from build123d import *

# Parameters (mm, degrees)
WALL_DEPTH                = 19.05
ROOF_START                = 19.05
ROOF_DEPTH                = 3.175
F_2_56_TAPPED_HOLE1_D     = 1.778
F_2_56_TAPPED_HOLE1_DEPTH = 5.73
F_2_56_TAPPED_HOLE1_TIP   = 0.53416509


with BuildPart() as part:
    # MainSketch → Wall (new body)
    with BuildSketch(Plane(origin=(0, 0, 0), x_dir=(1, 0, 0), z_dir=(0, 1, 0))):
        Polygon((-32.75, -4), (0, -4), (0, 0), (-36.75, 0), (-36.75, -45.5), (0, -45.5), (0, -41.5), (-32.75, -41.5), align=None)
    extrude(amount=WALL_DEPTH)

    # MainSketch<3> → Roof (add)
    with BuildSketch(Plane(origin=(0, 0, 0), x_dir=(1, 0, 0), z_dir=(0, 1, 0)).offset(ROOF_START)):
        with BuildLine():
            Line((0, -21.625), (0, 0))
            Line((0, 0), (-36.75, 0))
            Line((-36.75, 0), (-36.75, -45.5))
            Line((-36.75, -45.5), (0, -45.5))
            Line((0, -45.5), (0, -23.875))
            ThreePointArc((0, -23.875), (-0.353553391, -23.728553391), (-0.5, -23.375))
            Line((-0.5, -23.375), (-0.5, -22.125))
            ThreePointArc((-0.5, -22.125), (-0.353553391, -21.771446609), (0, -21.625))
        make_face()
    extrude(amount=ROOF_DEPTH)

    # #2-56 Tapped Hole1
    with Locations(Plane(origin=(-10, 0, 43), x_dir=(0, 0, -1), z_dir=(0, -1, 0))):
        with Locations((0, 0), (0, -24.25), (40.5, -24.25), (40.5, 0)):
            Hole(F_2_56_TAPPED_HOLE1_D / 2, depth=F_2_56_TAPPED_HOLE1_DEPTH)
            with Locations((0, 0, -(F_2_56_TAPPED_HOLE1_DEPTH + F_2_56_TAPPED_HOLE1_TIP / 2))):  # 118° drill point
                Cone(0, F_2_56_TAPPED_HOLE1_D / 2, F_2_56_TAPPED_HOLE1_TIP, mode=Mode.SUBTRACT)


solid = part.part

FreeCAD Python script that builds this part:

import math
import FreeCAD as App
import Part
import Sketcher

doc = App.newDocument("Part")
params = doc.addObject("Spreadsheet::Sheet", "Params")
for row, (alias, value) in enumerate([
    ("sketch1_height", "4 mm"),
    ("sketch1_height2", "45.5 mm"),
    ("sketch1_width", "32.75 mm"),
    ("pad1_length", "19.05 mm"),
    ("sketch2_radius", "0.5 mm"),
    ("sketch2_height", "45.5 mm"),
    ("sketch2_width", "36.75 mm"),
    ("sketch2_height2", "1.25 mm"),
    ("pad2_length", "3.175 mm"),
    ("hole_diameter", "1.778 mm"),
    ("hole_depth", "5.73 mm"),
], start=1):
    params.set(f"A{row}", alias)
    params.set(f"B{row}", "=" + value)
    params.setAlias(f"B{row}", alias)

body = doc.addObject("PartDesign::Body", "Body")

sketch1 = body.newObject("Sketcher::SketchObject", "Sketch")
sketch1.AttachmentSupport = (doc.getObject("XZ_Plane"), [""])
sketch1.MapMode = "FlatFace"
sketch1.addGeometry([
    Part.LineSegment(App.Vector(-32.8, 4, 0), App.Vector(0, 4, 0)),
    Part.LineSegment(App.Vector(0, 4, 0), App.Vector(0, 0, 0)),
    Part.LineSegment(App.Vector(0, 0, 0), App.Vector(-36.8, 0, 0)),
    Part.LineSegment(App.Vector(-36.8, 0, 0), App.Vector(-36.8, 45.5, 0)),
    Part.LineSegment(App.Vector(-36.8, 45.5, 0), App.Vector(0, 45.5, 0)),
    Part.LineSegment(App.Vector(0, 45.5, 0), App.Vector(0, 41.5, 0)),
    Part.LineSegment(App.Vector(0, 41.5, 0), App.Vector(-32.8, 41.5, 0)),
    Part.LineSegment(App.Vector(-32.8, 41.5, 0), App.Vector(-32.8, 4, 0)),
], False)
sketch1.addConstraint([
    Sketcher.Constraint("Coincident", 0, 2, 1, 1),
    Sketcher.Constraint("Coincident", 1, 2, 2, 1),
    Sketcher.Constraint("Coincident", 2, 2, 3, 1),
    Sketcher.Constraint("Coincident", 3, 2, 4, 1),
    Sketcher.Constraint("Coincident", 4, 2, 5, 1),
    Sketcher.Constraint("Coincident", 5, 2, 6, 1),
    Sketcher.Constraint("Coincident", 6, 2, 7, 1),
    Sketcher.Constraint("Coincident", 7, 2, 0, 1),
    Sketcher.Constraint("Horizontal", 0),
    Sketcher.Constraint("Vertical", 1),
    Sketcher.Constraint("Horizontal", 2),
    Sketcher.Constraint("Vertical", 3),
    Sketcher.Constraint("Horizontal", 4),
    Sketcher.Constraint("Vertical", 5),
    Sketcher.Constraint("Horizontal", 6),
    Sketcher.Constraint("Vertical", 7),
    Sketcher.Constraint("Coincident", 1, 2, -1, 1),
    Sketcher.Constraint("PointOnObject", 4, 2, -2),
    Sketcher.Constraint("Equal", 1, 5),
    Sketcher.Constraint("DistanceY", 1, 2, 1, 1, 4.0),
    Sketcher.Constraint("DistanceY", 3, 1, 3, 2, 45.5),
    Sketcher.Constraint("DistanceX", 3, 2, 6, 2, 4.0),
    Sketcher.Constraint("DistanceX", 0, 1, 0, 2, 32.75),
])
sketch1.setExpression("Constraints[19]", "Params.sketch1_height")
sketch1.setExpression("Constraints[20]", "Params.sketch1_height2")
sketch1.setExpression("Constraints[22]", "Params.sketch1_width")
pad1 = body.newObject("PartDesign::Pad", "Pad")
pad1.Profile = sketch1
pad1.setExpression("Length", "Params.pad1_length")
pad1.Reversed = True

sketch2 = body.newObject("Sketcher::SketchObject", "Sketch001")
sketch2.AttachmentSupport = (doc.getObject("XZ_Plane"), [""])
sketch2.MapMode = "FlatFace"
sketch2.AttachmentOffset = App.Placement(App.Vector(0, 0, -19.05), App.Rotation())
sketch2.addGeometry([
    Part.LineSegment(App.Vector(0, 21.62, 0), App.Vector(0, 0, 0)),
    Part.LineSegment(App.Vector(0, 0, 0), App.Vector(-36.75, 0, 0)),
    Part.LineSegment(App.Vector(-36.75, 0, 0), App.Vector(-36.75, 45.5, 0)),
    Part.LineSegment(App.Vector(-36.75, 45.5, 0), App.Vector(0, 45.5, 0)),
    Part.LineSegment(App.Vector(0, 45.5, 0), App.Vector(0, 23.88, 0)),
    Part.ArcOfCircle(Part.Circle(App.Vector(0, 23.38, 0), App.Vector(0, 0, 1), 0.5), math.radians(90), math.radians(180)),
    Part.LineSegment(App.Vector(-0.5, 23.38, 0), App.Vector(-0.5, 22.12, 0)),
    Part.ArcOfCircle(Part.Circle(App.Vector(0, 22.12, 0), App.Vector(0, 0, 1), 0.5), math.radians(180), math.radians(270)),
], False)
sketch2.addConstraint([
    Sketcher.Constraint("Coincident", 0, 2, 1, 1),
    Sketcher.Constraint("Coincident", 1, 2, 2, 1),
    Sketcher.Constraint("Coincident", 2, 2, 3, 1),
    Sketcher.Constraint("Coincident", 3, 2, 4, 1),
    Sketcher.Constraint("Coincident", 4, 2, 5, 1),
    Sketcher.Constraint("Tangent", 5, 2, 6, 1),
    Sketcher.Constraint("Tangent", 6, 2, 7, 1),
    Sketcher.Constraint("Coincident", 7, 2, 0, 1),
    Sketcher.Constraint("Vertical", 0),
    Sketcher.Constraint("Horizontal", 1),
    Sketcher.Constraint("Vertical", 2),
    Sketcher.Constraint("Horizontal", 3),
    Sketcher.Constraint("Vertical", 4),
    Sketcher.Constraint("Vertical", 6),
    Sketcher.Constraint("Coincident", 0, 2, -1, 1),
    Sketcher.Constraint("Equal", 5, 7),
    Sketcher.Constraint("PointOnObject", 5, 3, -2),
    Sketcher.Constraint("PointOnObject", 3, 2, -2),
    Sketcher.Constraint("Equal", 0, 4),
    Sketcher.Constraint("Radius", 5, 0.5),
    Sketcher.Constraint("DistanceY", 2, 1, 2, 2, 45.5),
    Sketcher.Constraint("DistanceX", 1, 2, 1, 1, 36.75),
    Sketcher.Constraint("DistanceY", 6, 2, 6, 1, 1.25),
])
sketch2.setExpression("Constraints[19]", "Params.sketch2_radius")
sketch2.setExpression("Constraints[20]", "Params.sketch2_height")
sketch2.setExpression("Constraints[21]", "Params.sketch2_width")
sketch2.setExpression("Constraints[22]", "Params.sketch2_height2")
pad2 = body.newObject("PartDesign::Pad", "Pad001")
pad2.Profile = sketch2
pad2.setExpression("Length", "Params.pad2_length")
pad2.Reversed = True

sketch3 = body.newObject("Sketcher::SketchObject", "Sketch002")
sketch3.AttachmentSupport = (doc.getObject("XZ_Plane"), [""])
sketch3.MapMode = "FlatFace"
sketch3.addGeometry([
    Part.Circle(App.Vector(-10, 43, 0), App.Vector(0, 0, 1), 0.9),
    Part.Circle(App.Vector(-34.2, 43, 0), App.Vector(0, 0, 1), 0.9),
    Part.Circle(App.Vector(-34.2, 2.5, 0), App.Vector(0, 0, 1), 0.9),
    Part.Circle(App.Vector(-10, 2.5, 0), App.Vector(0, 0, 1), 0.9),
], False)
sketch3.addConstraint([
    Sketcher.Constraint("Equal", 0, 1),
    Sketcher.Constraint("Equal", 1, 2),
    Sketcher.Constraint("Equal", 2, 3),
    Sketcher.Constraint("Horizontal", 0, 3, 1, 3),
    Sketcher.Constraint("Horizontal", 2, 3, 3, 3),
    Sketcher.Constraint("Vertical", 1, 3, 2, 3),
    Sketcher.Constraint("Vertical", 0, 3, 3, 3),
    Sketcher.Constraint("Diameter", 0, 1.778),
    Sketcher.Constraint("DistanceX", 0, 3, -1, 1, 10.0),
    Sketcher.Constraint("DistanceY", -1, 1, 0, 3, 43.0),
    Sketcher.Constraint("DistanceY", -1, 1, 2, 3, 2.5),
    Sketcher.Constraint("DistanceX", 1, 3, -1, 1, 34.25),
])
doc.recompute()
hole = body.newObject("PartDesign::Hole", "Hole")
hole.Profile = sketch3
hole.ThreadType = "None"
hole.setExpression("Diameter", "Params.hole_diameter")
hole.DepthType = "Dimension"
hole.setExpression("Depth", "Params.hole_depth")
hole.DrillPoint = "Angled"
hole.DrillPointAngle = 118

doc.recompute()
